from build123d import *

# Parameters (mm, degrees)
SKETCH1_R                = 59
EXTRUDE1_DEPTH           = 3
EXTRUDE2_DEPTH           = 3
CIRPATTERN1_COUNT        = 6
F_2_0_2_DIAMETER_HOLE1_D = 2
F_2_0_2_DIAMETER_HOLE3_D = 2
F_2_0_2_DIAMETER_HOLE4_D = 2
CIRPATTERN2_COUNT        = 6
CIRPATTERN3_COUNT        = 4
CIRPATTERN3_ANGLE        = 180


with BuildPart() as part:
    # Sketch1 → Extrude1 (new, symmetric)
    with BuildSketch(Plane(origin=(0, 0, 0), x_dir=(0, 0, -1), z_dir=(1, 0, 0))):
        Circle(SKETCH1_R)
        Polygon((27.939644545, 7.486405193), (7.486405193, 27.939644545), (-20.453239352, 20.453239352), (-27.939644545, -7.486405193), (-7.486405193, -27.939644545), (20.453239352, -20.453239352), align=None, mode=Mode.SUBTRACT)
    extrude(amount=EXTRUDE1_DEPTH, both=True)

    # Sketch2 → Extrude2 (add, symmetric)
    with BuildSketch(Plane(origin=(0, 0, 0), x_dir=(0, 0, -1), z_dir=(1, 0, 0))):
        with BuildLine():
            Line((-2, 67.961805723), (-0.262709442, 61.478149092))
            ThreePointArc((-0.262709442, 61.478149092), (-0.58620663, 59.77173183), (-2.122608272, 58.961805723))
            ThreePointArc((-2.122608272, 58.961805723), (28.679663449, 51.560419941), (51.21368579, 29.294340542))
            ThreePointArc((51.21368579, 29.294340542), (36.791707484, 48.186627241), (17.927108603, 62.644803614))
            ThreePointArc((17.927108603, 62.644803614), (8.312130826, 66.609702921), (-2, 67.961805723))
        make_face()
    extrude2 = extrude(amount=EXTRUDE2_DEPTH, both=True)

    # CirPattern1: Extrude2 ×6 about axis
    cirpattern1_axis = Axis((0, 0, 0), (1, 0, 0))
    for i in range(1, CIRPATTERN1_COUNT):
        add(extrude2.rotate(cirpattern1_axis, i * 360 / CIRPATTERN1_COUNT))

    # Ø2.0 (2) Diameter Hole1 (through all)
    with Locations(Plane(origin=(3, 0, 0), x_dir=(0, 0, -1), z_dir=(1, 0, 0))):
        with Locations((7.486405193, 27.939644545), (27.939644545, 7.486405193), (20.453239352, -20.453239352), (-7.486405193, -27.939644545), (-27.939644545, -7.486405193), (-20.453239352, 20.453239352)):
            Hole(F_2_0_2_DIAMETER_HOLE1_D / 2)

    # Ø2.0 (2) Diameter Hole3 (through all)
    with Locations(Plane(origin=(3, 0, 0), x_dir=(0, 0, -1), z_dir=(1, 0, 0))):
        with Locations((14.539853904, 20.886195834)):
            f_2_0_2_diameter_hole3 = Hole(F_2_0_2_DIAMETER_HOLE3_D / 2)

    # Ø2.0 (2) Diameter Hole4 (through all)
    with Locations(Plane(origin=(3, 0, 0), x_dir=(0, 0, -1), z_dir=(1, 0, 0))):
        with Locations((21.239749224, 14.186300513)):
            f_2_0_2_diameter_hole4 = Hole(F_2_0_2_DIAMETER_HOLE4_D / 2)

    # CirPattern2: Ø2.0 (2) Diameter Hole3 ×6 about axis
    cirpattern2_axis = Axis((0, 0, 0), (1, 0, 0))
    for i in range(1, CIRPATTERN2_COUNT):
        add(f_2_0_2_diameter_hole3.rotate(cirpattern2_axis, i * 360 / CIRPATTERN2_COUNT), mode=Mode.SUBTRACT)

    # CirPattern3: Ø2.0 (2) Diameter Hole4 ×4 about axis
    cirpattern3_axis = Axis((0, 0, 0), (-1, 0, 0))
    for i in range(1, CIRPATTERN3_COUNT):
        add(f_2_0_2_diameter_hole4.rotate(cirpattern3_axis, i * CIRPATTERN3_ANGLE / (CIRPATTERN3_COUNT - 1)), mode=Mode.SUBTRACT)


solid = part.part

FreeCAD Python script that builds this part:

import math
import FreeCAD as App
import Part
import Sketcher
Q = App.Units.Quantity


def add_polygon(sketch, points):
    """Adds a closed chain of lines whose ends are joined by coincident constraints."""
    first, n = sketch.GeometryCount, len(points)
    for a, b in zip(points, points[1:] + points[:1]):
        sketch.addGeometry(Part.LineSegment(App.Vector(*a, 0), App.Vector(*b, 0)), False)
    for i in range(n):
        sketch.addConstraint(Sketcher.Constraint("Coincident", first + i, 2, first + (i + 1) % n, 1))

doc = App.newDocument("Part")
body = doc.addObject("PartDesign::Body", "Body")

# Sketch on YZ plane
sketch1 = body.newObject("Sketcher::SketchObject", "Sketch")
sketch1.AttachmentSupport = (doc.getObject("YZ_Plane"), [""])
sketch1.MapMode = "FlatFace"
sketch1.addGeometry(Part.Circle(App.Vector(0, 0, 0), App.Vector(0, 0, 1), 59), False)  # 0
add_polygon(sketch1, [(28, -7), (7, -28), (-20, -20), (-28, 7), (-7, 28), (20, 20)])  # lines 1-6
sketch1.addConstraint(Sketcher.Constraint("Coincident", 0, 3, -1, 1))
sketch1.addConstraint(Sketcher.Constraint("Symmetric", 1, 2, 4, 2, -1, 1))
sketch1.addConstraint(Sketcher.Constraint("Symmetric", 2, 2, 5, 2, -1, 1))
sketch1.addConstraint(Sketcher.Constraint("Symmetric", 3, 2, 6, 2, -1, 1))
sketch1.addConstraint(Sketcher.Constraint("Equal", 1, 2))
sketch1.addConstraint(Sketcher.Constraint("Equal", 2, 3))
sketch1.addConstraint(Sketcher.Constraint("Diameter", 0, Q("118 mm")))
sketch1.addConstraint(Sketcher.Constraint("Angle", 1, Q("-135 deg")))
sketch1.addConstraint(Sketcher.Constraint("Angle", 2, Q("165 deg")))
sketch1.addConstraint(Sketcher.Constraint("Angle", 3, Q("105 deg")))
sketch1.addConstraint(Sketcher.Constraint("Distance", 1, Q("28.925248 mm")))
pad1 = body.newObject("PartDesign::Pad", "Pad")
pad1.Profile = sketch1
pad1.Length = 6
pad1.Midplane = True

# Sketch on YZ plane
sketch2 = body.newObject("Sketcher::SketchObject", "Sketch001")
sketch2.AttachmentSupport = (doc.getObject("YZ_Plane"), [""])
sketch2.MapMode = "FlatFace"
sketch2.addGeometry(Part.LineSegment(App.Vector(68, 2, 0), App.Vector(61.5, 0.3, 0)), False)
sketch2.addGeometry(Part.ArcOfCircle(Part.Circle(App.Vector(61, 2.2, 0), App.Vector(0, 0, 1), 2), math.radians(-178), math.radians(-75)), False)
sketch2.addGeometry(Part.ArcOfCircle(Part.Circle(App.Vector(0, 0, 0), App.Vector(0, 0, 1), 59), math.radians(-60), math.radians(2)), False)
sketch2.addGeometry(Part.ArcOfCircle(Part.Circle(App.Vector(-15.4, 26.9, 0), App.Vector(0, 0, 1), 90), math.radians(-60), math.radians(-30)), False)
sketch2.addGeometry(Part.ArcOfCircle(Part.Circle(App.Vector(28, 2, 0), App.Vector(0, 0, 1), 40), math.radians(-30), math.radians(0)), False)
sketch2.addConstraint(Sketcher.Constraint("Tangent", 0, 2, 1, 2))
sketch2.addConstraint(Sketcher.Constraint("Tangent", 1, 1, 2, 2))
sketch2.addConstraint(Sketcher.Constraint("Tangent", 2, 1, 3, 1))
sketch2.addConstraint(Sketcher.Constraint("Tangent", 3, 2, 4, 1))
sketch2.addConstraint(Sketcher.Constraint("Coincident", 4, 2, 0, 1))
sketch2.addConstraint(Sketcher.Constraint("Coincident", 2, 3, -1, 1))
sketch2.addConstraint(Sketcher.Constraint("Radius", 1, Q("2 mm")))
sketch2.addConstraint(Sketcher.Constraint("Radius", 2, Q("59 mm")))
sketch2.addConstraint(Sketcher.Constraint("Radius", 3, Q("90 mm")))
sketch2.addConstraint(Sketcher.Constraint("Radius", 4, Q("40 mm")))
sketch2.addConstraint(Sketcher.Constraint("Angle", 0, Q("-165 deg")))
sketch2.addConstraint(Sketcher.Constraint("DistanceY", -1, 1, 4, 3, Q("2 mm")))
sketch2.addConstraint(Sketcher.Constraint("DistanceY", -1, 1, 4, 2, Q("2 mm")))
sketch2.addConstraint(Sketcher.Constraint("DistanceX", 4, 3, 1, 1, Q("31 mm")))
pad2 = body.newObject("PartDesign::Pad", "Pad001")
pad2.Profile = sketch2
pad2.Length = 6
pad2.Midplane = True
doc.recompute()

polarpattern = body.newObject("PartDesign::PolarPattern", "PolarPattern")
polarpattern.Originals = [pad2]
polarpattern.Axis = (doc.getObject("X_Axis"), [""])
polarpattern.Angle = 360
polarpattern.Occurrences = 6
body.Tip = polarpattern

# Sketch on YZ plane
sketch3 = body.newObject("Sketcher::SketchObject", "Sketch002")
sketch3.AttachmentSupport = (doc.getObject("YZ_Plane"), [""])
sketch3.MapMode = "FlatFace"
sketch3.AttachmentOffset = App.Placement(App.Vector(0, 0, 3), App.Rotation())
sketch3.addGeometry(Part.Circle(App.Vector(27.9, -7.5, 0), App.Vector(0, 0, 1), 1), False)
sketch3.addGeometry(Part.Circle(App.Vector(7.5, -27.9, 0), App.Vector(0, 0, 1), 1), False)
sketch3.addGeometry(Part.Circle(App.Vector(-20.5, -20.5, 0), App.Vector(0, 0, 1), 1), False)
sketch3.addGeometry(Part.Circle(App.Vector(-27.9, 7.5, 0), App.Vector(0, 0, 1), 1), False)
sketch3.addGeometry(Part.Circle(App.Vector(-7.5, 27.9, 0), App.Vector(0, 0, 1), 1), False)
sketch3.addGeometry(Part.Circle(App.Vector(20.5, 20.5, 0), App.Vector(0, 0, 1), 1), False)
sketch3.addConstraint(Sketcher.Constraint("Equal", 0, 1))
sketch3.addConstraint(Sketcher.Constraint("Equal", 1, 2))
sketch3.addConstraint(Sketcher.Constraint("Equal", 2, 3))
sketch3.addConstraint(Sketcher.Constraint("Equal", 3, 4))
sketch3.addConstraint(Sketcher.Constraint("Equal", 4, 5))
sketch3.addConstraint(Sketcher.Constraint("Symmetric", 0, 3, 3, 3, -1, 1))
sketch3.addConstraint(Sketcher.Constraint("Symmetric", 1, 3, 4, 3, -1, 1))
sketch3.addConstraint(Sketcher.Constraint("Symmetric", 2, 3, 5, 3, -1, 1))
sketch3.addConstraint(Sketcher.Constraint("Diameter", 0, Q("2 mm")))
sketch3.addConstraint(Sketcher.Constraint("DistanceX", 2, 3, -1, 1, Q("20.453239 mm")))
sketch3.addConstraint(Sketcher.Constraint("DistanceY", 2, 3, -1, 1, Q("20.453239 mm")))
sketch3.addConstraint(Sketcher.Constraint("DistanceX", 1, 3, 0, 3, Q("20.453239 mm")))
sketch3.addConstraint(Sketcher.Constraint("DistanceY", 1, 3, 0, 3, Q("20.453239 mm")))
sketch3.addConstraint(Sketcher.Constraint("DistanceX", 3, 3, 1, 3, Q("35.42605 mm")))
sketch3.addConstraint(Sketcher.Constraint("DistanceY", 1, 3, 3, 3, Q("35.42605 mm")))
doc.recompute()
hole = body.newObject("PartDesign::Hole", "Hole")
hole.Profile = sketch3
hole.ThreadType = "None"
hole.Diameter = 2
hole.DepthType = "ThroughAll"

# Sketch on YZ plane
sketch4 = body.newObject("Sketcher::SketchObject", "Sketch003")
sketch4.AttachmentSupport = (doc.getObject("YZ_Plane"), [""])
sketch4.MapMode = "FlatFace"
sketch4.AttachmentOffset = App.Placement(App.Vector(0, 0, 3), App.Rotation())
sketch4.addGeometry(Part.Circle(App.Vector(20.9, -14.5, 0), App.Vector(0, 0, 1), 1), False)
sketch4.addConstraint(Sketcher.Constraint("Diameter", 0, Q("2 mm")))
sketch4.addConstraint(Sketcher.Constraint("DistanceX", -1, 1, 0, 3, Q("20.886196 mm")))
sketch4.addConstraint(Sketcher.Constraint("DistanceY", 0, 3, -1, 1, Q("14.539854 mm")))
doc.recompute()
hole2 = body.newObject("PartDesign::Hole", "Hole001")
hole2.Profile = sketch4
hole2.ThreadType = "None"
hole2.Diameter = 2
hole2.DepthType = "ThroughAll"

# Sketch on YZ plane
sketch5 = body.newObject("Sketcher::SketchObject", "Sketch004")
sketch5.AttachmentSupport = (doc.getObject("YZ_Plane"), [""])
sketch5.MapMode = "FlatFace"
sketch5.AttachmentOffset = App.Placement(App.Vector(0, 0, 3), App.Rotation())
sketch5.addGeometry(Part.Circle(App.Vector(14.2, -21.2, 0), App.Vector(0, 0, 1), 1), False)
sketch5.addConstraint(Sketcher.Constraint("Diameter", 0, Q("2 mm")))
sketch5.addConstraint(Sketcher.Constraint("DistanceX", -1, 1, 0, 3, Q("14.186301 mm")))
sketch5.addConstraint(Sketcher.Constraint("DistanceY", 0, 3, -1, 1, Q("21.239749 mm")))
doc.recompute()
hole3 = body.newObject("PartDesign::Hole", "Hole002")
hole3.Profile = sketch5
hole3.ThreadType = "None"
hole3.Diameter = 2
hole3.DepthType = "ThroughAll"
doc.recompute()

polarpattern2 = body.newObject("PartDesign::PolarPattern", "PolarPattern001")
polarpattern2.Originals = [hole2]
polarpattern2.Axis = (doc.getObject("X_Axis"), [""])
polarpattern2.Angle = 360
polarpattern2.Occurrences = 6
body.Tip = polarpattern2
doc.recompute()

polarpattern3 = body.newObject("PartDesign::PolarPattern", "PolarPattern002")
polarpattern3.Originals = [hole3]
polarpattern3.Axis = (doc.getObject("X_Axis"), [""])
polarpattern3.Angle = 180
polarpattern3.Occurrences = 4
polarpattern3.Reversed = True
body.Tip = polarpattern3

doc.recompute()
